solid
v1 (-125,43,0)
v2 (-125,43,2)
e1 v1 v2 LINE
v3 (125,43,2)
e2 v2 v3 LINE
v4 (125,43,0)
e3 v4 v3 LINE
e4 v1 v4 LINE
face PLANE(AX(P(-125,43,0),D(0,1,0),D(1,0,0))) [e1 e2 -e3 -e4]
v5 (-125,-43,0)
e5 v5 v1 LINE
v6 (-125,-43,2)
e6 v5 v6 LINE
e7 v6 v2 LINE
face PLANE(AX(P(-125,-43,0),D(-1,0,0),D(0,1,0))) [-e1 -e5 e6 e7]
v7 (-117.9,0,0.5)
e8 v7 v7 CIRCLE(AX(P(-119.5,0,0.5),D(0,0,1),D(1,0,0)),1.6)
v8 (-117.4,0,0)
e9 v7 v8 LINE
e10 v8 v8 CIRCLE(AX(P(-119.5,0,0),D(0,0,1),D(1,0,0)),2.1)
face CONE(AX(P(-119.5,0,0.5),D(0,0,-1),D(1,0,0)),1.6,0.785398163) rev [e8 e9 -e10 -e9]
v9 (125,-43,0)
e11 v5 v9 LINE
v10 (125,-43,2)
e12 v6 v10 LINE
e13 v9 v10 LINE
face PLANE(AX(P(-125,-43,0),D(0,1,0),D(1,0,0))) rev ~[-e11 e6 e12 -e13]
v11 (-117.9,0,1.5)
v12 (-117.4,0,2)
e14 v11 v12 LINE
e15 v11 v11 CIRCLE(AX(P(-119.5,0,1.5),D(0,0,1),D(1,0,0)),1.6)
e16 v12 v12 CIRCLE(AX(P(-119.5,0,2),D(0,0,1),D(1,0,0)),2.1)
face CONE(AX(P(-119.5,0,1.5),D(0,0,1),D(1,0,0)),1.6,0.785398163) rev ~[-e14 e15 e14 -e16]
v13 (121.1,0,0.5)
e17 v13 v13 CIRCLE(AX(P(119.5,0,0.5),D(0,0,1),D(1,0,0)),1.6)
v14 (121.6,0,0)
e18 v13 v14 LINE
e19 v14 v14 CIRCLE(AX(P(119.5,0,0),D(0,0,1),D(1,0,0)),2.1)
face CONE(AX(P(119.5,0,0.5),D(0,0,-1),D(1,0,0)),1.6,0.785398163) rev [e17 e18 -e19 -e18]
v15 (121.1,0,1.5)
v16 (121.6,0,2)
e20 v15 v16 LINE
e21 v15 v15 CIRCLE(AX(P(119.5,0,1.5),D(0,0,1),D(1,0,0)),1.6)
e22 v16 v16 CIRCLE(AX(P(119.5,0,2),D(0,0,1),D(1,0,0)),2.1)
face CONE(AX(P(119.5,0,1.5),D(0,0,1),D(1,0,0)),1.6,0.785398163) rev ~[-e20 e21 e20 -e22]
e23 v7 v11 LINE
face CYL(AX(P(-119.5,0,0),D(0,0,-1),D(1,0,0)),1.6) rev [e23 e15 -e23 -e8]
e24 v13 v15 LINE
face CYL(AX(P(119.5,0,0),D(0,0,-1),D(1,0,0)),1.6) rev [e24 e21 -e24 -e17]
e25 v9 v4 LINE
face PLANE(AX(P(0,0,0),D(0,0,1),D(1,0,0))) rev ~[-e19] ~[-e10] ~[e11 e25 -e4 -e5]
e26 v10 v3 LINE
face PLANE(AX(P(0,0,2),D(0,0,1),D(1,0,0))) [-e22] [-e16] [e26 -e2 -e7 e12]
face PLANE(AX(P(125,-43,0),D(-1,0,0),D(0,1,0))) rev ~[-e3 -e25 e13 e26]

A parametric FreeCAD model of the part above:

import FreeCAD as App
import Part
import Sketcher
from FreeCAD import Vector
Q = App.Units.Quantity


def edges_at(feature, points):
    """Names of the edges that pass closest to the given points."""
    edges = feature.Shape.Edges
    near = lambda p: min(range(len(edges)), key=lambda i: edges[i].distToShape(Part.Vertex(*p))[0])
    return sorted({f"Edge{near(p) + 1}" for p in points})

doc = App.newDocument("Part")
params = doc.addObject("Spreadsheet::Sheet", "Params")
for row, (alias, value) in enumerate([
    ("sketch1_diameter", "3.2 mm"),
    ("sketch1_width", "250 mm"),
    ("sketch1_height", "86 mm"),
    ("pad1_length", "2 mm"),
    ("chamfer_size", "0.5 mm"),
], start=1):
    params.set(f"A{row}", alias)
    params.set(f"B{row}", "=" + value)
    params.setAlias(f"B{row}", alias)

body = doc.addObject("PartDesign::Body", "Body")

# Sketch on XY plane
sketch1 = doc.addObject("Sketcher::SketchObject", "Sketch")
body.addObject(sketch1)
sketch1.AttachmentSupport = (doc.XY_Plane, [""])
sketch1.MapMode = "FlatFace"
sketch1.addGeometry([
    Part.LineSegment(Vector(-125, 43, 0), Vector(-125, -43, 0)),  # 0
    Part.LineSegment(Vector(-125, -43, 0), Vector(125, -43, 0)),  # 1
    Part.LineSegment(Vector(125, -43, 0), Vector(125, 43, 0)),  # 2
    Part.LineSegment(Vector(125, 43, 0), Vector(-125, 43, 0)),  # 3
    Part.Circle(Vector(-119.5, 0, 0), Vector(0, 0, 1), 1.6),  # 4
    Part.Circle(Vector(119.5, 0, 0), Vector(0, 0, 1), 1.6),  # 5
], False)
sketch1.addConstraint([
    Sketcher.Constraint("Coincident", 0, 2, 1, 1),
    Sketcher.Constraint("Coincident", 1, 2, 2, 1),
    Sketcher.Constraint("Coincident", 2, 2, 3, 1),
    Sketcher.Constraint("Coincident", 3, 2, 0, 1),
    Sketcher.Constraint("Vertical", 0),
    Sketcher.Constraint("Horizontal", 1),
    Sketcher.Constraint("Vertical", 2),
    Sketcher.Constraint("Horizontal", 3),
    Sketcher.Constraint("Equal", 4, 5),
    Sketcher.Constraint("Symmetric", 4, 3, 5, 3, -1, 1),
    Sketcher.Constraint("Symmetric", 0, 2, 2, 2, -1, 1),
    Sketcher.Constraint("PointOnObject", 4, 3, -1),
    Sketcher.Constraint("Diameter", 4, Q("3.2 mm")),
    Sketcher.Constraint("DistanceX", 1, 1, 1, 2, Q("250 mm")),
    Sketcher.Constraint("DistanceY", 0, 2, 0, 1, Q("86 mm")),
    Sketcher.Constraint("DistanceX", 4, 3, 5, 3, Q("239 mm")),
])
sketch1.setExpression("Constraints[12]", "Params.sketch1_diameter")
sketch1.setExpression("Constraints[13]", "Params.sketch1_width")
sketch1.setExpression("Constraints[14]", "Params.sketch1_height")
pad1 = doc.addObject("PartDesign::Pad", "Pad")
body.addObject(pad1)
pad1.Profile = sketch1
pad1.setExpression("Length", "Params.pad1_length")
doc.recompute()

chamfer = doc.addObject("PartDesign::Chamfer", "Chamfer")
body.addObject(chamfer)
chamfer.Base = (pad1, edges_at(pad1, [
    (-117.9, 0, 1),
    (-121.1, 0, 0),
    (-121.1, 0, 2),
    (121.1, 0, 1),
    (117.9, 0, 0),
    (117.9, 0, 2),
]))
chamfer.setExpression("Size", "Params.chamfer_size")

doc.recompute()
